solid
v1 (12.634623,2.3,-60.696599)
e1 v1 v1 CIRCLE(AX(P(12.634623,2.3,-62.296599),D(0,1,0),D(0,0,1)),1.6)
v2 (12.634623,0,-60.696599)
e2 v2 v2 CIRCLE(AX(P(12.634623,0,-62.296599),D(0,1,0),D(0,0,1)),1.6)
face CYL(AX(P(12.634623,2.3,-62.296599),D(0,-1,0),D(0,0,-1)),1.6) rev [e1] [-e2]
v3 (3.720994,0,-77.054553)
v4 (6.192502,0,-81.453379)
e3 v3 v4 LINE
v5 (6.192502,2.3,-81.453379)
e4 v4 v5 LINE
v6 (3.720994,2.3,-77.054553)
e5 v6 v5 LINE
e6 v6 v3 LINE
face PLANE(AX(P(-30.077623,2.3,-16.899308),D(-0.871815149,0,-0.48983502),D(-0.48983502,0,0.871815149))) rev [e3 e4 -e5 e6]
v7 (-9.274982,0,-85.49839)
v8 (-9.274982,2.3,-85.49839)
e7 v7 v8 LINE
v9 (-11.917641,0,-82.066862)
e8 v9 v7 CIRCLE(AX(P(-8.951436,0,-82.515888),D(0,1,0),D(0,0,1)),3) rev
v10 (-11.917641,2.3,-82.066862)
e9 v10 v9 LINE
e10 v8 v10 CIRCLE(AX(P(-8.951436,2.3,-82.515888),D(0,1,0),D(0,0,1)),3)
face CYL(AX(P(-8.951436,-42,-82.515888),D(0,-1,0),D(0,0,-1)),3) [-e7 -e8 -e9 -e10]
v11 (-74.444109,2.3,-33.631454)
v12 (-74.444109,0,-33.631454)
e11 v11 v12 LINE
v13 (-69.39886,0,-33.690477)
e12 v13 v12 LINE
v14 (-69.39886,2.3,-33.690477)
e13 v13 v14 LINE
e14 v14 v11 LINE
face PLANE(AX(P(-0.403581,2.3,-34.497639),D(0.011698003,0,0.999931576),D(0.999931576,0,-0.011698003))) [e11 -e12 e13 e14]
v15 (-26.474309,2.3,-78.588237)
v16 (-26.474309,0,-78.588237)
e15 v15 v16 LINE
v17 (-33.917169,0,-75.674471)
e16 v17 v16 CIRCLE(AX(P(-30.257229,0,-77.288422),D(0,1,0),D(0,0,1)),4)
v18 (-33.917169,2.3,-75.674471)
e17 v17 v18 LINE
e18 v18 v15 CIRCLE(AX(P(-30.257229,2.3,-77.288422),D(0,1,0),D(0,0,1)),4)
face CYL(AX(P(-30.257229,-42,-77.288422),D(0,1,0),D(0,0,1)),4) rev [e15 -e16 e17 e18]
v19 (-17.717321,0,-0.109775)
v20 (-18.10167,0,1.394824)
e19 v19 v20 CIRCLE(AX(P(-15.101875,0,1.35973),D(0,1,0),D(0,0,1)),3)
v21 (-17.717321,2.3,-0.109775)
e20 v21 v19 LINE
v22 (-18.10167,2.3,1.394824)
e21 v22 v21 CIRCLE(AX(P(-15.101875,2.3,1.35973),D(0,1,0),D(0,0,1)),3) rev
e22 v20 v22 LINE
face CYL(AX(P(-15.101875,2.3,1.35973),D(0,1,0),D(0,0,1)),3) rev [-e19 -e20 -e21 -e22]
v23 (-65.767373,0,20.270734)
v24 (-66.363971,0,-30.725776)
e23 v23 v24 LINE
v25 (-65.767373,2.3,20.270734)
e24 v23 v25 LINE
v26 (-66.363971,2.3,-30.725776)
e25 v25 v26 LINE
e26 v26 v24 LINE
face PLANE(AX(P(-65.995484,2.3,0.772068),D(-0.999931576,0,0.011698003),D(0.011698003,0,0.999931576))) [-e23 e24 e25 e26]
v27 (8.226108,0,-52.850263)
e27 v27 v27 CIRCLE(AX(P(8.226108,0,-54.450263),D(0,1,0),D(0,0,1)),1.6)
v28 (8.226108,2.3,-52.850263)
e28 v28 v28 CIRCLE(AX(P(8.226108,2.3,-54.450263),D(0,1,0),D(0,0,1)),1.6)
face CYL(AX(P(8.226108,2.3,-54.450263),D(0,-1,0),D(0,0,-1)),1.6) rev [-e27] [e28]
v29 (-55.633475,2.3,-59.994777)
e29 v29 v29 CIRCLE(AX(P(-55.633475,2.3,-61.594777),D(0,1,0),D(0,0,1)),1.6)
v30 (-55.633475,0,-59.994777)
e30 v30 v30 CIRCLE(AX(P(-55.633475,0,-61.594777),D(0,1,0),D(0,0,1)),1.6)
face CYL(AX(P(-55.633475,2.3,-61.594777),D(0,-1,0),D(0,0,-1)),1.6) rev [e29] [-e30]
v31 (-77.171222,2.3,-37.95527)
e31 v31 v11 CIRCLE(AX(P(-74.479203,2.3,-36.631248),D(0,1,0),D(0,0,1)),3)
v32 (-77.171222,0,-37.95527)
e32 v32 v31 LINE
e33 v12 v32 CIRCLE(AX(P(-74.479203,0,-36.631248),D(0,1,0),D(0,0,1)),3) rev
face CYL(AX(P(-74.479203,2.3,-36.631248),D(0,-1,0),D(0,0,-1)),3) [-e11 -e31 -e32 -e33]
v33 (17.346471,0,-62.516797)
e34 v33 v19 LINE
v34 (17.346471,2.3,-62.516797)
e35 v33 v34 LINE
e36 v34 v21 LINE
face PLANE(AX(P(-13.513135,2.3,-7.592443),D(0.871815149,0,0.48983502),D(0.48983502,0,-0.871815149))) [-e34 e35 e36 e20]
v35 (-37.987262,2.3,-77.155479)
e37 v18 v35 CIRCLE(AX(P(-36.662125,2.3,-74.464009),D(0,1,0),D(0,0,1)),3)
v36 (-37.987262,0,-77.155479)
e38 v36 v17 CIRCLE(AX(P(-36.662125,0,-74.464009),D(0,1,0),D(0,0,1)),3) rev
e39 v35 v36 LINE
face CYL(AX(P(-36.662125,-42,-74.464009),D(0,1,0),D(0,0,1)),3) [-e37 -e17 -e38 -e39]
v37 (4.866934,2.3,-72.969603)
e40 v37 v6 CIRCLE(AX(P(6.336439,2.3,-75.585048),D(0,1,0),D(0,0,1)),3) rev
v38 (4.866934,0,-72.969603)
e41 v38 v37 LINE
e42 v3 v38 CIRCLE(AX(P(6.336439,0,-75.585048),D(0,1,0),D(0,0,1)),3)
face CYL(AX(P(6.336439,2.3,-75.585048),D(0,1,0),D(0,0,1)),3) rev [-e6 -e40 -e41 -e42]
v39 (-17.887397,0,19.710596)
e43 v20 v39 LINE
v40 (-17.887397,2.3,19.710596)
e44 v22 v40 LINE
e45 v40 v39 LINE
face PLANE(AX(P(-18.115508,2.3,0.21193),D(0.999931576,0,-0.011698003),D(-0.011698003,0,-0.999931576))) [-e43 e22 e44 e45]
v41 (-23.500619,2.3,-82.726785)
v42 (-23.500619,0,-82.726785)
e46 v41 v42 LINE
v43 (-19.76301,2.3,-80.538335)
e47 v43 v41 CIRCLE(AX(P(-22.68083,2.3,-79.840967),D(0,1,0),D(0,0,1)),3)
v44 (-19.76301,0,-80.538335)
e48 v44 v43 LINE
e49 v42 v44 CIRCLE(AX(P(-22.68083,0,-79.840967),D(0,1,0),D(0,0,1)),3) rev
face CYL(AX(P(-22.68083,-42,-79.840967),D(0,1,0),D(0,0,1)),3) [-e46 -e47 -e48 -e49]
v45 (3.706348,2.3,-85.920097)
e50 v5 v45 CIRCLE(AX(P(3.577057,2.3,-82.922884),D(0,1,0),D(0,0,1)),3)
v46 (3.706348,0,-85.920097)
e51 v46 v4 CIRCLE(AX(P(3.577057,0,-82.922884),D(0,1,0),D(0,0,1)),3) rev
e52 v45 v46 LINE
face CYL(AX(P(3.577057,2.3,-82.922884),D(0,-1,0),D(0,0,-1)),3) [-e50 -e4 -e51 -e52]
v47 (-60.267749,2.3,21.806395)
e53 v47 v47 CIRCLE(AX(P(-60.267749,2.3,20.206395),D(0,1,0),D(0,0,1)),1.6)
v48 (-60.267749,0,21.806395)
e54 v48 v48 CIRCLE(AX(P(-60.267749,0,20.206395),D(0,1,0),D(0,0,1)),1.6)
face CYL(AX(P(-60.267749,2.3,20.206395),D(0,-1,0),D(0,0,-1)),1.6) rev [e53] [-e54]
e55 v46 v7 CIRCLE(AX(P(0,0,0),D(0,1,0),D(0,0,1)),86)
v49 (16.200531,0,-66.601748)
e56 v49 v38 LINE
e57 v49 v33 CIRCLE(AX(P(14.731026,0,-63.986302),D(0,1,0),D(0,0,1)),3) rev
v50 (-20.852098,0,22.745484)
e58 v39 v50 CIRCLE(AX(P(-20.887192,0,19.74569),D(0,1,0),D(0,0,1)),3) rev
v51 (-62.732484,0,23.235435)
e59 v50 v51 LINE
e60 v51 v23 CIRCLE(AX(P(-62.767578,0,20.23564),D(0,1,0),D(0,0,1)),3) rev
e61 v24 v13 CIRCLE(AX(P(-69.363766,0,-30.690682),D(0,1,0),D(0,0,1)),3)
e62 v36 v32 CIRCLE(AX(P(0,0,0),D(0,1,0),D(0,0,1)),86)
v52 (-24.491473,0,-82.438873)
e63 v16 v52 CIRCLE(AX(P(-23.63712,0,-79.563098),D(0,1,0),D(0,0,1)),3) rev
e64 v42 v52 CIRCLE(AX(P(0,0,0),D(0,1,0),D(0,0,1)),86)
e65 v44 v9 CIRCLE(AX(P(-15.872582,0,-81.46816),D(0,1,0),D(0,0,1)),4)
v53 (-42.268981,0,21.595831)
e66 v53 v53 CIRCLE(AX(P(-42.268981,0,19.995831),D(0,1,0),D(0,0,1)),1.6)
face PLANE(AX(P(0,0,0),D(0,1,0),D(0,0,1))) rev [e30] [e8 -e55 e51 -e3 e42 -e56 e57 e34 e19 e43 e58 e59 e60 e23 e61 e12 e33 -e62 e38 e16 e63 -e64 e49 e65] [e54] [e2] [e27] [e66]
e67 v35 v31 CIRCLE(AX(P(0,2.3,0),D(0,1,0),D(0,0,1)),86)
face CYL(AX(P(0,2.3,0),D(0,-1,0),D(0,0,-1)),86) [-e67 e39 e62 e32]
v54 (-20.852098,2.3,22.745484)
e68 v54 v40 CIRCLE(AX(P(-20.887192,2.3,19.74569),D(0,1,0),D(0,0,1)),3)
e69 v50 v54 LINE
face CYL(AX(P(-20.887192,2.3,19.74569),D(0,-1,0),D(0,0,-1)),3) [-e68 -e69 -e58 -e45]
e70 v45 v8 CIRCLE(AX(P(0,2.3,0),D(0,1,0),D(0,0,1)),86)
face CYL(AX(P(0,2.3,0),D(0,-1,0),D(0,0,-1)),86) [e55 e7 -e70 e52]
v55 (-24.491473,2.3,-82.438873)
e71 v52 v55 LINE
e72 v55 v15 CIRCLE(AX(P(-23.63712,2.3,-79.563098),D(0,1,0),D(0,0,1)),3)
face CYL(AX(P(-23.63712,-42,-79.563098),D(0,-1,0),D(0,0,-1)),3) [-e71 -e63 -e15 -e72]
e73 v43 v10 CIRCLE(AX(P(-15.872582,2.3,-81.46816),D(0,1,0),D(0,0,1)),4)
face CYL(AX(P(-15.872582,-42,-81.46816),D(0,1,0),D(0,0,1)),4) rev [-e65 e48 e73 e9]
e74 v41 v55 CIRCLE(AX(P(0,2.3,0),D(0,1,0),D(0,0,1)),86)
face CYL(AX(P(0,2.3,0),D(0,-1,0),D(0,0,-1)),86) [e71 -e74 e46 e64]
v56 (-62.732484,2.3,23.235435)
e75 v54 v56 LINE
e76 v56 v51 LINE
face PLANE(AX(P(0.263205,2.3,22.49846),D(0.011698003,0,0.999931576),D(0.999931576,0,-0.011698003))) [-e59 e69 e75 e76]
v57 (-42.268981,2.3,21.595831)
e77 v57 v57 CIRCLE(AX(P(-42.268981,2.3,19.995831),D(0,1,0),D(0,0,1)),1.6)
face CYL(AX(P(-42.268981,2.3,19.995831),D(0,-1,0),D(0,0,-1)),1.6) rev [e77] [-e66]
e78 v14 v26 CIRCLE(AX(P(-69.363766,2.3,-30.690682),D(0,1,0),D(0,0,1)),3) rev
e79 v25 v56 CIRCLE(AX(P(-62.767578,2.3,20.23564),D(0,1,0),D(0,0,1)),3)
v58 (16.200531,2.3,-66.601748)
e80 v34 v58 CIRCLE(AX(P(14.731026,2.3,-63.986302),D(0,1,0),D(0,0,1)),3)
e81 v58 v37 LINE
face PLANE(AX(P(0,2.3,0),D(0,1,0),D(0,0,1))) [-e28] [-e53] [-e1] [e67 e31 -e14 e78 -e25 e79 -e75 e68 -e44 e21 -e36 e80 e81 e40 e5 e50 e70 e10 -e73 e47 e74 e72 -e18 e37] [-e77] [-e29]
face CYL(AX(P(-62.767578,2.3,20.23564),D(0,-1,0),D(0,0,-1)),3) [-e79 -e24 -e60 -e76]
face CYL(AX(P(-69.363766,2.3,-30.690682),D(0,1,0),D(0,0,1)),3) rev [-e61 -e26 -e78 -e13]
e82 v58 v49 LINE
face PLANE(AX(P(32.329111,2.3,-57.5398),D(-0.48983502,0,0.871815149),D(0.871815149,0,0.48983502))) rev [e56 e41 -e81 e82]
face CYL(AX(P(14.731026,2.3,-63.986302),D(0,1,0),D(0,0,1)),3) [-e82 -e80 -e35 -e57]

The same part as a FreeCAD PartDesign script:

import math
import FreeCAD as App
import Part
import Sketcher
from FreeCAD import Vector
Q = App.Units.Quantity


def edges_at(feature, points):
    """Names of the edges that pass closest to the given points."""
    edges = feature.Shape.Edges
    near = lambda p: min(range(len(edges)), key=lambda i: edges[i].distToShape(Part.Vertex(*p))[0])
    return sorted({f"Edge{near(p) + 1}" for p in points})

doc = App.newDocument("Part")
body = doc.addObject("PartDesign::Body", "Body")

# Sketch on XZ plane
sketch1 = body.newObject("Sketcher::SketchObject", "Sketch")
sketch1.AttachmentSupport = (doc.getObject("XZ_Plane"), [""])
sketch1.MapMode = "FlatFace"
sketch1.addGeometry([
    Part.LineSegment(Vector(18.815977, -65.132243, 0), Vector(2.251489, -74.439108, 0)),  # 0
    Part.LineSegment(Vector(2.251489, -74.439108, 0), Vector(8.509906, -85.577926, 0)),  # 1
    Part.ArcOfCircle(Part.Circle(Vector(0, 0, 0), Vector(0, 0, 1), 86), math.radians(-157.019371), math.radians(-84.321152)),  # 2
    Part.LineSegment(Vector(-79.174774, -33.576111, 0), Vector(-66.399065, -33.725571, 0)),  # 3
    Part.LineSegment(Vector(-66.399065, -33.725571, 0), Vector(-65.732279, 23.270529, 0)),  # 4
    Part.LineSegment(Vector(-65.732279, 23.270529, 0), Vector(-17.852303, 22.71039, 0)),  # 5
    Part.LineSegment(Vector(-17.852303, 22.71039, 0), Vector(-18.111073, 0.591032, 0)),  # 6
    Part.LineSegment(Vector(-18.111073, 0.591032, 0), Vector(18.815977, -65.132243, 0)),  # 7
    Part.Circle(Vector(-60.267749, 20.206395, 0), Vector(0, 0, 1), 1.6),  # 8
    Part.Circle(Vector(-42.268981, 19.995831, 0), Vector(0, 0, 1), 1.6),  # 9
    Part.Circle(Vector(-55.633475, -61.594777, 0), Vector(0, 0, 1), 1.6),  # 10
    Part.Circle(Vector(8.226108, -54.450263, 0), Vector(0, 0, 1), 1.6),  # 11
    Part.Circle(Vector(12.634623, -62.296599, 0), Vector(0, 0, 1), 1.6),  # 12
], False)
sketch1.addConstraint([
    Sketcher.Constraint("Coincident", 0, 2, 1, 1),
    Sketcher.Constraint("Coincident", 1, 2, 2, 2),
    Sketcher.Constraint("Coincident", 2, 1, 3, 1),
    Sketcher.Constraint("Coincident", 3, 2, 4, 1),
    Sketcher.Constraint("Coincident", 4, 2, 5, 1),
    Sketcher.Constraint("Coincident", 5, 2, 6, 1),
    Sketcher.Constraint("Coincident", 6, 2, 7, 1),
    Sketcher.Constraint("Coincident", 7, 2, 0, 1),
    Sketcher.Constraint("Coincident", 2, 3, -1, 1),
    Sketcher.Constraint("Radius", 2, Q("86 mm")),
    Sketcher.Constraint("Diameter", 8, Q("3.2 mm")),
    Sketcher.Constraint("Diameter", 9, Q("3.2 mm")),
    Sketcher.Constraint("Diameter", 10, Q("3.2 mm")),
    Sketcher.Constraint("Diameter", 11, Q("3.2 mm")),
    Sketcher.Constraint("Diameter", 12, Q("3.2 mm")),
    Sketcher.Constraint("Distance", 0, Q("19 mm")),
    Sketcher.Constraint("Distance", 4, Q("57 mm")),
    Sketcher.Constraint("DistanceY", 12, 3, -1, 1, Q("62.296599 mm")),
    Sketcher.Constraint("DistanceX", 11, 3, 1, 2, Q("0.283798 mm")),
    Sketcher.Constraint("DistanceX", 2, 1, 10, 3, Q("23.541299 mm")),
    Sketcher.Constraint("DistanceX", 4, 2, 9, 3, Q("23.463298 mm")),
    Sketcher.Constraint("DistanceY", 3, 2, 4, 2, Q("56.9961 mm")),
    Sketcher.Constraint("DistanceY", 6, 2, 9, 3, Q("19.404799 mm")),
    Sketcher.Constraint("Distance", 7, Q("75.386708 mm")),
    Sketcher.Constraint("DistanceX", 8, 3, -1, 1, Q("60.267749 mm")),
    Sketcher.Constraint("DistanceX", 9, 3, -1, 1, Q("42.268981 mm")),
    Sketcher.Constraint("DistanceY", -1, 1, 9, 3, Q("19.995831 mm")),
    Sketcher.Constraint("DistanceX", -1, 1, 11, 3, Q("8.226108 mm")),
    Sketcher.Constraint("DistanceX", -1, 1, 0, 2, Q("2.251489 mm")),
    Sketcher.Constraint("DistanceY", 2, 1, -1, 1, Q("33.576111 mm")),
    Sketcher.Constraint("DistanceY", 3, 2, -1, 1, Q("33.725571 mm")),
    Sketcher.Constraint("DistanceY", -1, 1, 5, 2, Q("22.71039 mm")),
    Sketcher.Constraint("DistanceY", 10, 3, 8, 3, Q("81.801171 mm")),
    Sketcher.Constraint("DistanceY", 0, 2, 12, 3, Q("12.142509 mm")),
    Sketcher.Constraint("DistanceY", 0, 2, 10, 3, Q("12.844331 mm")),
    Sketcher.Constraint("DistanceX", 3, 2, 5, 2, Q("48.546762 mm")),
    Sketcher.Constraint("DistanceX", 6, 2, 5, 2, Q("0.25877 mm")),
    Sketcher.Constraint("DistanceY", 7, 2, 11, 3, Q("10.68198 mm")),
    Sketcher.Constraint("DistanceX", -1, 1, 12, 3, Q("12.634623 mm")),
])
pad1 = body.newObject("PartDesign::Pad", "Pad")
pad1.Profile = sketch1
pad1.Length = 2.3
pad1.Reversed = True
doc.recompute()

fillet = body.newObject("PartDesign::Fillet", "Fillet")
fillet.Base = (pad1, edges_at(pad1, [
    (8.51, 1.15, -85.578),
    (2.251, 1.15, -74.439),
    (18.816, 1.15, -65.132),
    (-18.111, 1.15, 0.591),
    (-17.852, 1.15, 22.71),
    (-65.732, 1.15, 23.271),
    (-66.399, 1.15, -33.726),
    (-79.175, 1.15, -33.576),
]))
fillet.Radius = 3

# Sketch on XZ plane
sketch2 = body.newObject("Sketcher::SketchObject", "Sketch001")
sketch2.AttachmentSupport = (doc.getObject("XZ_Plane"), [""])
sketch2.MapMode = "FlatFace"
sketch2.AttachmentOffset = App.Placement(Vector(0, 0, -2.3), App.Rotation())
sketch2.addGeometry([
    Part.Circle(Vector(-30.3, -77.3, 0), Vector(0, 0, 1), 4),
    Part.Circle(Vector(-15.9, -81.5, 0), Vector(0, 0, 1), 4),
], False)
sketch2.addConstraint([
    Sketcher.Constraint("Equal", 0, 1),
    Sketcher.Constraint("Diameter", 0, Q("8 mm")),
    Sketcher.Constraint("DistanceX", 0, 3, -1, 1, Q("30.257229 mm")),
    Sketcher.Constraint("DistanceY", 0, 3, -1, 1, Q("77.288422 mm")),
    Sketcher.Constraint("DistanceY", 1, 3, -1, 1, Q("81.46816 mm")),
    Sketcher.Constraint("DistanceX", 1, 3, -1, 1, Q("15.872582 mm")),
])
pocket1 = body.newObject("PartDesign::Pocket", "Pocket")
pocket1.Profile = sketch2
pocket1.Length = 44.3
pocket1.Reversed = True
doc.recompute()

fillet2 = body.newObject("PartDesign::Fillet", "Fillet001")
fillet2.Base = (pocket1, edges_at(pocket1, [
    (-28.828, 1.15, -81.024),
    (-33.843, 1.15, -79.061),
    (-13.795, 1.15, -84.886),
    (-19.081, 1.15, -83.856),
]))
fillet2.Radius = 3

doc.recompute()
